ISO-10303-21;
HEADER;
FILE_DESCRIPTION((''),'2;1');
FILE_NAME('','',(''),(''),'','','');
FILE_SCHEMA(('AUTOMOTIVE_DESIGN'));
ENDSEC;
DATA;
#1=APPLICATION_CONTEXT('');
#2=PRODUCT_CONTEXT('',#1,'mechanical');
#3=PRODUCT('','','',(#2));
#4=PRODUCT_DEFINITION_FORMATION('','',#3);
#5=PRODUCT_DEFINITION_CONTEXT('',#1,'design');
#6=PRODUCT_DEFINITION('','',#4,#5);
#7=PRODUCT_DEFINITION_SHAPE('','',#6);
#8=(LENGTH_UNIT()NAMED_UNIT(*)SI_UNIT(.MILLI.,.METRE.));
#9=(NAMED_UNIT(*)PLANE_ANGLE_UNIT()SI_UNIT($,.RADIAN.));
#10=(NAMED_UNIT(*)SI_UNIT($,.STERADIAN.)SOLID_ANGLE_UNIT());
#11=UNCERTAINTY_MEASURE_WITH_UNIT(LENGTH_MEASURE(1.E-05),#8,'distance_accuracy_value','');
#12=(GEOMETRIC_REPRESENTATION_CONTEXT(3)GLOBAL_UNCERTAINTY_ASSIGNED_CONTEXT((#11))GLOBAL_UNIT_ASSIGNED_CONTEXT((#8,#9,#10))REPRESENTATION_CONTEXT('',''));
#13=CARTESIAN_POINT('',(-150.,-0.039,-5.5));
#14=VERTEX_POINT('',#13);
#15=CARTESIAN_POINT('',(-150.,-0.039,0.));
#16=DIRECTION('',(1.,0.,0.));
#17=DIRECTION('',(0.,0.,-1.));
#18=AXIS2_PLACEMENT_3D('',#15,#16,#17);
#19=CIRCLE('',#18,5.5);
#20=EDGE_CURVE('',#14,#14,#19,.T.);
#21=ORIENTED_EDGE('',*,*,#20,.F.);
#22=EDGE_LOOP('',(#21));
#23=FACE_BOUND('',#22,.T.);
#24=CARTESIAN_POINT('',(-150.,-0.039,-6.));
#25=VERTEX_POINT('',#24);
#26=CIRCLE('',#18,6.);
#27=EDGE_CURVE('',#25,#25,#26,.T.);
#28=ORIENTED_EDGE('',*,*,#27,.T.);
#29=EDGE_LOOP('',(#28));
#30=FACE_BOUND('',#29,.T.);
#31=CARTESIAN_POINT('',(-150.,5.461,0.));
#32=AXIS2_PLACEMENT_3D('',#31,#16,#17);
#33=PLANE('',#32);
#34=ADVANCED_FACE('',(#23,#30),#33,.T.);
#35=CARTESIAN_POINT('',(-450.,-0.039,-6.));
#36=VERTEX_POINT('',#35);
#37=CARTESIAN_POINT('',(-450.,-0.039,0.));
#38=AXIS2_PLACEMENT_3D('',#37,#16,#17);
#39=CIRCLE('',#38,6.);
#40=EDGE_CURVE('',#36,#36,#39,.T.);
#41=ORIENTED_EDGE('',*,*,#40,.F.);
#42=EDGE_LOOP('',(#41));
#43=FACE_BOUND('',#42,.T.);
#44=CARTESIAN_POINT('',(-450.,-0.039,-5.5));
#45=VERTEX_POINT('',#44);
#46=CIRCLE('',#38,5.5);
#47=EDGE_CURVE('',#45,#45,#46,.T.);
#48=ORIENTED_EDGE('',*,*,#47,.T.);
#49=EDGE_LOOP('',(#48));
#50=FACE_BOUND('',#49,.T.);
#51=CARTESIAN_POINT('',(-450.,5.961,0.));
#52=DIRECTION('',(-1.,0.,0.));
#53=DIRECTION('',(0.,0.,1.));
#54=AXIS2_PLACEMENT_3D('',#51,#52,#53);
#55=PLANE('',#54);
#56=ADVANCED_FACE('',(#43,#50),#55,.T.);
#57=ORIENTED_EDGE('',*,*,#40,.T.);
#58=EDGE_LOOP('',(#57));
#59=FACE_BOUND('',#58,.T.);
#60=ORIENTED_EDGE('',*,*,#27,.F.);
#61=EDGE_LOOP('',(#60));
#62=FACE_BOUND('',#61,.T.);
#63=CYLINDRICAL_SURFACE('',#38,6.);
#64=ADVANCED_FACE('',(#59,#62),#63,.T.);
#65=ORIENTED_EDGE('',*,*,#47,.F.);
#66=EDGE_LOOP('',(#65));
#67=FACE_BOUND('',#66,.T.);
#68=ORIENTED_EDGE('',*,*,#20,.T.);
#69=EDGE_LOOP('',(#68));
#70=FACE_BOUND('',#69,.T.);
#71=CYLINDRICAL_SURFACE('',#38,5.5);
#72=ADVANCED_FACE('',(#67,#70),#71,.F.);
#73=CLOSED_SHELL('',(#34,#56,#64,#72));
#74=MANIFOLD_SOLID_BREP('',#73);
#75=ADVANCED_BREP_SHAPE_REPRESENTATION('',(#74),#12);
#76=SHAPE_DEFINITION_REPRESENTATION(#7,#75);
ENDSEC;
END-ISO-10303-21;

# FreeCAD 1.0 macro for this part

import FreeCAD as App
import Part
import Sketcher
from FreeCAD import Vector


def add_polygon(sketch, points):
    """Adds a closed chain of lines whose ends are joined by coincident constraints."""
    first, n = sketch.GeometryCount, len(points)
    for a, b in zip(points, points[1:] + points[:1]):
        sketch.addGeometry(Part.LineSegment(App.Vector(*a, 0), App.Vector(*b, 0)), False)
    for i in range(n):
        sketch.addConstraint(Sketcher.Constraint("Coincident", first + i, 2, first + (i + 1) % n, 1))

doc = App.newDocument("Part")
params = doc.addObject("Spreadsheet::Sheet", "Params")
for row, (alias, value) in enumerate([
    ("sketch1_width", "300 mm"),
    ("sketch1_height", "0.5 mm"),
    ("revolution_angle", "360 deg"),
], start=1):
    params.set(f"A{row}", alias)
    params.set(f"B{row}", "=" + value)
    params.setAlias(f"B{row}", alias)

body = doc.addObject("PartDesign::Body", "Body")

# Sketch on XY plane
sketch1 = body.newObject("Sketcher::SketchObject", "Sketch")
sketch1.AttachmentSupport = (doc.getObject("XY_Plane"), [""])
sketch1.MapMode = "FlatFace"
add_polygon(sketch1, [(-450, 6), (-450, 5.5), (-150, 5.5), (-150, 6)])  # lines 0-3
sketch1.addGeometry(Part.LineSegment(Vector(-450, 0, 0), Vector(-150, 0, 0)), True)  # axis
sketch1.addConstraint([
    Sketcher.Constraint("Vertical", 0),
    Sketcher.Constraint("Horizontal", 1),
    Sketcher.Constraint("Vertical", 2),
    Sketcher.Constraint("Horizontal", 3),
    Sketcher.Constraint("Horizontal", 4),
    Sketcher.Constraint("Vertical", 3, 2, 4, 1),
    Sketcher.Constraint("Vertical", 2, 2, 4, 2),
    Sketcher.Constraint("DistanceX", 1, 1, 1, 2, 300.0),
    Sketcher.Constraint("DistanceY", 0, 2, 0, 1, 0.5),
    Sketcher.Constraint("DistanceX", 0, 2, -1, 1, 450.0),
    Sketcher.Constraint("DistanceY", 4, 1, 3, 2, 6.0),
    Sketcher.Constraint("DistanceY", -1, 1, 0, 2, 5.461),
])
sketch1.setExpression("Constraints[11]", "Params.sketch1_width")
sketch1.setExpression("Constraints[12]", "Params.sketch1_height")
revolution = body.newObject("PartDesign::Revolution", "Revolution")
revolution.Profile = sketch1
revolution.ReferenceAxis = (sketch1, ["Axis0"])
revolution.setExpression("Angle", "Params.revolution_angle")

doc.recompute()
